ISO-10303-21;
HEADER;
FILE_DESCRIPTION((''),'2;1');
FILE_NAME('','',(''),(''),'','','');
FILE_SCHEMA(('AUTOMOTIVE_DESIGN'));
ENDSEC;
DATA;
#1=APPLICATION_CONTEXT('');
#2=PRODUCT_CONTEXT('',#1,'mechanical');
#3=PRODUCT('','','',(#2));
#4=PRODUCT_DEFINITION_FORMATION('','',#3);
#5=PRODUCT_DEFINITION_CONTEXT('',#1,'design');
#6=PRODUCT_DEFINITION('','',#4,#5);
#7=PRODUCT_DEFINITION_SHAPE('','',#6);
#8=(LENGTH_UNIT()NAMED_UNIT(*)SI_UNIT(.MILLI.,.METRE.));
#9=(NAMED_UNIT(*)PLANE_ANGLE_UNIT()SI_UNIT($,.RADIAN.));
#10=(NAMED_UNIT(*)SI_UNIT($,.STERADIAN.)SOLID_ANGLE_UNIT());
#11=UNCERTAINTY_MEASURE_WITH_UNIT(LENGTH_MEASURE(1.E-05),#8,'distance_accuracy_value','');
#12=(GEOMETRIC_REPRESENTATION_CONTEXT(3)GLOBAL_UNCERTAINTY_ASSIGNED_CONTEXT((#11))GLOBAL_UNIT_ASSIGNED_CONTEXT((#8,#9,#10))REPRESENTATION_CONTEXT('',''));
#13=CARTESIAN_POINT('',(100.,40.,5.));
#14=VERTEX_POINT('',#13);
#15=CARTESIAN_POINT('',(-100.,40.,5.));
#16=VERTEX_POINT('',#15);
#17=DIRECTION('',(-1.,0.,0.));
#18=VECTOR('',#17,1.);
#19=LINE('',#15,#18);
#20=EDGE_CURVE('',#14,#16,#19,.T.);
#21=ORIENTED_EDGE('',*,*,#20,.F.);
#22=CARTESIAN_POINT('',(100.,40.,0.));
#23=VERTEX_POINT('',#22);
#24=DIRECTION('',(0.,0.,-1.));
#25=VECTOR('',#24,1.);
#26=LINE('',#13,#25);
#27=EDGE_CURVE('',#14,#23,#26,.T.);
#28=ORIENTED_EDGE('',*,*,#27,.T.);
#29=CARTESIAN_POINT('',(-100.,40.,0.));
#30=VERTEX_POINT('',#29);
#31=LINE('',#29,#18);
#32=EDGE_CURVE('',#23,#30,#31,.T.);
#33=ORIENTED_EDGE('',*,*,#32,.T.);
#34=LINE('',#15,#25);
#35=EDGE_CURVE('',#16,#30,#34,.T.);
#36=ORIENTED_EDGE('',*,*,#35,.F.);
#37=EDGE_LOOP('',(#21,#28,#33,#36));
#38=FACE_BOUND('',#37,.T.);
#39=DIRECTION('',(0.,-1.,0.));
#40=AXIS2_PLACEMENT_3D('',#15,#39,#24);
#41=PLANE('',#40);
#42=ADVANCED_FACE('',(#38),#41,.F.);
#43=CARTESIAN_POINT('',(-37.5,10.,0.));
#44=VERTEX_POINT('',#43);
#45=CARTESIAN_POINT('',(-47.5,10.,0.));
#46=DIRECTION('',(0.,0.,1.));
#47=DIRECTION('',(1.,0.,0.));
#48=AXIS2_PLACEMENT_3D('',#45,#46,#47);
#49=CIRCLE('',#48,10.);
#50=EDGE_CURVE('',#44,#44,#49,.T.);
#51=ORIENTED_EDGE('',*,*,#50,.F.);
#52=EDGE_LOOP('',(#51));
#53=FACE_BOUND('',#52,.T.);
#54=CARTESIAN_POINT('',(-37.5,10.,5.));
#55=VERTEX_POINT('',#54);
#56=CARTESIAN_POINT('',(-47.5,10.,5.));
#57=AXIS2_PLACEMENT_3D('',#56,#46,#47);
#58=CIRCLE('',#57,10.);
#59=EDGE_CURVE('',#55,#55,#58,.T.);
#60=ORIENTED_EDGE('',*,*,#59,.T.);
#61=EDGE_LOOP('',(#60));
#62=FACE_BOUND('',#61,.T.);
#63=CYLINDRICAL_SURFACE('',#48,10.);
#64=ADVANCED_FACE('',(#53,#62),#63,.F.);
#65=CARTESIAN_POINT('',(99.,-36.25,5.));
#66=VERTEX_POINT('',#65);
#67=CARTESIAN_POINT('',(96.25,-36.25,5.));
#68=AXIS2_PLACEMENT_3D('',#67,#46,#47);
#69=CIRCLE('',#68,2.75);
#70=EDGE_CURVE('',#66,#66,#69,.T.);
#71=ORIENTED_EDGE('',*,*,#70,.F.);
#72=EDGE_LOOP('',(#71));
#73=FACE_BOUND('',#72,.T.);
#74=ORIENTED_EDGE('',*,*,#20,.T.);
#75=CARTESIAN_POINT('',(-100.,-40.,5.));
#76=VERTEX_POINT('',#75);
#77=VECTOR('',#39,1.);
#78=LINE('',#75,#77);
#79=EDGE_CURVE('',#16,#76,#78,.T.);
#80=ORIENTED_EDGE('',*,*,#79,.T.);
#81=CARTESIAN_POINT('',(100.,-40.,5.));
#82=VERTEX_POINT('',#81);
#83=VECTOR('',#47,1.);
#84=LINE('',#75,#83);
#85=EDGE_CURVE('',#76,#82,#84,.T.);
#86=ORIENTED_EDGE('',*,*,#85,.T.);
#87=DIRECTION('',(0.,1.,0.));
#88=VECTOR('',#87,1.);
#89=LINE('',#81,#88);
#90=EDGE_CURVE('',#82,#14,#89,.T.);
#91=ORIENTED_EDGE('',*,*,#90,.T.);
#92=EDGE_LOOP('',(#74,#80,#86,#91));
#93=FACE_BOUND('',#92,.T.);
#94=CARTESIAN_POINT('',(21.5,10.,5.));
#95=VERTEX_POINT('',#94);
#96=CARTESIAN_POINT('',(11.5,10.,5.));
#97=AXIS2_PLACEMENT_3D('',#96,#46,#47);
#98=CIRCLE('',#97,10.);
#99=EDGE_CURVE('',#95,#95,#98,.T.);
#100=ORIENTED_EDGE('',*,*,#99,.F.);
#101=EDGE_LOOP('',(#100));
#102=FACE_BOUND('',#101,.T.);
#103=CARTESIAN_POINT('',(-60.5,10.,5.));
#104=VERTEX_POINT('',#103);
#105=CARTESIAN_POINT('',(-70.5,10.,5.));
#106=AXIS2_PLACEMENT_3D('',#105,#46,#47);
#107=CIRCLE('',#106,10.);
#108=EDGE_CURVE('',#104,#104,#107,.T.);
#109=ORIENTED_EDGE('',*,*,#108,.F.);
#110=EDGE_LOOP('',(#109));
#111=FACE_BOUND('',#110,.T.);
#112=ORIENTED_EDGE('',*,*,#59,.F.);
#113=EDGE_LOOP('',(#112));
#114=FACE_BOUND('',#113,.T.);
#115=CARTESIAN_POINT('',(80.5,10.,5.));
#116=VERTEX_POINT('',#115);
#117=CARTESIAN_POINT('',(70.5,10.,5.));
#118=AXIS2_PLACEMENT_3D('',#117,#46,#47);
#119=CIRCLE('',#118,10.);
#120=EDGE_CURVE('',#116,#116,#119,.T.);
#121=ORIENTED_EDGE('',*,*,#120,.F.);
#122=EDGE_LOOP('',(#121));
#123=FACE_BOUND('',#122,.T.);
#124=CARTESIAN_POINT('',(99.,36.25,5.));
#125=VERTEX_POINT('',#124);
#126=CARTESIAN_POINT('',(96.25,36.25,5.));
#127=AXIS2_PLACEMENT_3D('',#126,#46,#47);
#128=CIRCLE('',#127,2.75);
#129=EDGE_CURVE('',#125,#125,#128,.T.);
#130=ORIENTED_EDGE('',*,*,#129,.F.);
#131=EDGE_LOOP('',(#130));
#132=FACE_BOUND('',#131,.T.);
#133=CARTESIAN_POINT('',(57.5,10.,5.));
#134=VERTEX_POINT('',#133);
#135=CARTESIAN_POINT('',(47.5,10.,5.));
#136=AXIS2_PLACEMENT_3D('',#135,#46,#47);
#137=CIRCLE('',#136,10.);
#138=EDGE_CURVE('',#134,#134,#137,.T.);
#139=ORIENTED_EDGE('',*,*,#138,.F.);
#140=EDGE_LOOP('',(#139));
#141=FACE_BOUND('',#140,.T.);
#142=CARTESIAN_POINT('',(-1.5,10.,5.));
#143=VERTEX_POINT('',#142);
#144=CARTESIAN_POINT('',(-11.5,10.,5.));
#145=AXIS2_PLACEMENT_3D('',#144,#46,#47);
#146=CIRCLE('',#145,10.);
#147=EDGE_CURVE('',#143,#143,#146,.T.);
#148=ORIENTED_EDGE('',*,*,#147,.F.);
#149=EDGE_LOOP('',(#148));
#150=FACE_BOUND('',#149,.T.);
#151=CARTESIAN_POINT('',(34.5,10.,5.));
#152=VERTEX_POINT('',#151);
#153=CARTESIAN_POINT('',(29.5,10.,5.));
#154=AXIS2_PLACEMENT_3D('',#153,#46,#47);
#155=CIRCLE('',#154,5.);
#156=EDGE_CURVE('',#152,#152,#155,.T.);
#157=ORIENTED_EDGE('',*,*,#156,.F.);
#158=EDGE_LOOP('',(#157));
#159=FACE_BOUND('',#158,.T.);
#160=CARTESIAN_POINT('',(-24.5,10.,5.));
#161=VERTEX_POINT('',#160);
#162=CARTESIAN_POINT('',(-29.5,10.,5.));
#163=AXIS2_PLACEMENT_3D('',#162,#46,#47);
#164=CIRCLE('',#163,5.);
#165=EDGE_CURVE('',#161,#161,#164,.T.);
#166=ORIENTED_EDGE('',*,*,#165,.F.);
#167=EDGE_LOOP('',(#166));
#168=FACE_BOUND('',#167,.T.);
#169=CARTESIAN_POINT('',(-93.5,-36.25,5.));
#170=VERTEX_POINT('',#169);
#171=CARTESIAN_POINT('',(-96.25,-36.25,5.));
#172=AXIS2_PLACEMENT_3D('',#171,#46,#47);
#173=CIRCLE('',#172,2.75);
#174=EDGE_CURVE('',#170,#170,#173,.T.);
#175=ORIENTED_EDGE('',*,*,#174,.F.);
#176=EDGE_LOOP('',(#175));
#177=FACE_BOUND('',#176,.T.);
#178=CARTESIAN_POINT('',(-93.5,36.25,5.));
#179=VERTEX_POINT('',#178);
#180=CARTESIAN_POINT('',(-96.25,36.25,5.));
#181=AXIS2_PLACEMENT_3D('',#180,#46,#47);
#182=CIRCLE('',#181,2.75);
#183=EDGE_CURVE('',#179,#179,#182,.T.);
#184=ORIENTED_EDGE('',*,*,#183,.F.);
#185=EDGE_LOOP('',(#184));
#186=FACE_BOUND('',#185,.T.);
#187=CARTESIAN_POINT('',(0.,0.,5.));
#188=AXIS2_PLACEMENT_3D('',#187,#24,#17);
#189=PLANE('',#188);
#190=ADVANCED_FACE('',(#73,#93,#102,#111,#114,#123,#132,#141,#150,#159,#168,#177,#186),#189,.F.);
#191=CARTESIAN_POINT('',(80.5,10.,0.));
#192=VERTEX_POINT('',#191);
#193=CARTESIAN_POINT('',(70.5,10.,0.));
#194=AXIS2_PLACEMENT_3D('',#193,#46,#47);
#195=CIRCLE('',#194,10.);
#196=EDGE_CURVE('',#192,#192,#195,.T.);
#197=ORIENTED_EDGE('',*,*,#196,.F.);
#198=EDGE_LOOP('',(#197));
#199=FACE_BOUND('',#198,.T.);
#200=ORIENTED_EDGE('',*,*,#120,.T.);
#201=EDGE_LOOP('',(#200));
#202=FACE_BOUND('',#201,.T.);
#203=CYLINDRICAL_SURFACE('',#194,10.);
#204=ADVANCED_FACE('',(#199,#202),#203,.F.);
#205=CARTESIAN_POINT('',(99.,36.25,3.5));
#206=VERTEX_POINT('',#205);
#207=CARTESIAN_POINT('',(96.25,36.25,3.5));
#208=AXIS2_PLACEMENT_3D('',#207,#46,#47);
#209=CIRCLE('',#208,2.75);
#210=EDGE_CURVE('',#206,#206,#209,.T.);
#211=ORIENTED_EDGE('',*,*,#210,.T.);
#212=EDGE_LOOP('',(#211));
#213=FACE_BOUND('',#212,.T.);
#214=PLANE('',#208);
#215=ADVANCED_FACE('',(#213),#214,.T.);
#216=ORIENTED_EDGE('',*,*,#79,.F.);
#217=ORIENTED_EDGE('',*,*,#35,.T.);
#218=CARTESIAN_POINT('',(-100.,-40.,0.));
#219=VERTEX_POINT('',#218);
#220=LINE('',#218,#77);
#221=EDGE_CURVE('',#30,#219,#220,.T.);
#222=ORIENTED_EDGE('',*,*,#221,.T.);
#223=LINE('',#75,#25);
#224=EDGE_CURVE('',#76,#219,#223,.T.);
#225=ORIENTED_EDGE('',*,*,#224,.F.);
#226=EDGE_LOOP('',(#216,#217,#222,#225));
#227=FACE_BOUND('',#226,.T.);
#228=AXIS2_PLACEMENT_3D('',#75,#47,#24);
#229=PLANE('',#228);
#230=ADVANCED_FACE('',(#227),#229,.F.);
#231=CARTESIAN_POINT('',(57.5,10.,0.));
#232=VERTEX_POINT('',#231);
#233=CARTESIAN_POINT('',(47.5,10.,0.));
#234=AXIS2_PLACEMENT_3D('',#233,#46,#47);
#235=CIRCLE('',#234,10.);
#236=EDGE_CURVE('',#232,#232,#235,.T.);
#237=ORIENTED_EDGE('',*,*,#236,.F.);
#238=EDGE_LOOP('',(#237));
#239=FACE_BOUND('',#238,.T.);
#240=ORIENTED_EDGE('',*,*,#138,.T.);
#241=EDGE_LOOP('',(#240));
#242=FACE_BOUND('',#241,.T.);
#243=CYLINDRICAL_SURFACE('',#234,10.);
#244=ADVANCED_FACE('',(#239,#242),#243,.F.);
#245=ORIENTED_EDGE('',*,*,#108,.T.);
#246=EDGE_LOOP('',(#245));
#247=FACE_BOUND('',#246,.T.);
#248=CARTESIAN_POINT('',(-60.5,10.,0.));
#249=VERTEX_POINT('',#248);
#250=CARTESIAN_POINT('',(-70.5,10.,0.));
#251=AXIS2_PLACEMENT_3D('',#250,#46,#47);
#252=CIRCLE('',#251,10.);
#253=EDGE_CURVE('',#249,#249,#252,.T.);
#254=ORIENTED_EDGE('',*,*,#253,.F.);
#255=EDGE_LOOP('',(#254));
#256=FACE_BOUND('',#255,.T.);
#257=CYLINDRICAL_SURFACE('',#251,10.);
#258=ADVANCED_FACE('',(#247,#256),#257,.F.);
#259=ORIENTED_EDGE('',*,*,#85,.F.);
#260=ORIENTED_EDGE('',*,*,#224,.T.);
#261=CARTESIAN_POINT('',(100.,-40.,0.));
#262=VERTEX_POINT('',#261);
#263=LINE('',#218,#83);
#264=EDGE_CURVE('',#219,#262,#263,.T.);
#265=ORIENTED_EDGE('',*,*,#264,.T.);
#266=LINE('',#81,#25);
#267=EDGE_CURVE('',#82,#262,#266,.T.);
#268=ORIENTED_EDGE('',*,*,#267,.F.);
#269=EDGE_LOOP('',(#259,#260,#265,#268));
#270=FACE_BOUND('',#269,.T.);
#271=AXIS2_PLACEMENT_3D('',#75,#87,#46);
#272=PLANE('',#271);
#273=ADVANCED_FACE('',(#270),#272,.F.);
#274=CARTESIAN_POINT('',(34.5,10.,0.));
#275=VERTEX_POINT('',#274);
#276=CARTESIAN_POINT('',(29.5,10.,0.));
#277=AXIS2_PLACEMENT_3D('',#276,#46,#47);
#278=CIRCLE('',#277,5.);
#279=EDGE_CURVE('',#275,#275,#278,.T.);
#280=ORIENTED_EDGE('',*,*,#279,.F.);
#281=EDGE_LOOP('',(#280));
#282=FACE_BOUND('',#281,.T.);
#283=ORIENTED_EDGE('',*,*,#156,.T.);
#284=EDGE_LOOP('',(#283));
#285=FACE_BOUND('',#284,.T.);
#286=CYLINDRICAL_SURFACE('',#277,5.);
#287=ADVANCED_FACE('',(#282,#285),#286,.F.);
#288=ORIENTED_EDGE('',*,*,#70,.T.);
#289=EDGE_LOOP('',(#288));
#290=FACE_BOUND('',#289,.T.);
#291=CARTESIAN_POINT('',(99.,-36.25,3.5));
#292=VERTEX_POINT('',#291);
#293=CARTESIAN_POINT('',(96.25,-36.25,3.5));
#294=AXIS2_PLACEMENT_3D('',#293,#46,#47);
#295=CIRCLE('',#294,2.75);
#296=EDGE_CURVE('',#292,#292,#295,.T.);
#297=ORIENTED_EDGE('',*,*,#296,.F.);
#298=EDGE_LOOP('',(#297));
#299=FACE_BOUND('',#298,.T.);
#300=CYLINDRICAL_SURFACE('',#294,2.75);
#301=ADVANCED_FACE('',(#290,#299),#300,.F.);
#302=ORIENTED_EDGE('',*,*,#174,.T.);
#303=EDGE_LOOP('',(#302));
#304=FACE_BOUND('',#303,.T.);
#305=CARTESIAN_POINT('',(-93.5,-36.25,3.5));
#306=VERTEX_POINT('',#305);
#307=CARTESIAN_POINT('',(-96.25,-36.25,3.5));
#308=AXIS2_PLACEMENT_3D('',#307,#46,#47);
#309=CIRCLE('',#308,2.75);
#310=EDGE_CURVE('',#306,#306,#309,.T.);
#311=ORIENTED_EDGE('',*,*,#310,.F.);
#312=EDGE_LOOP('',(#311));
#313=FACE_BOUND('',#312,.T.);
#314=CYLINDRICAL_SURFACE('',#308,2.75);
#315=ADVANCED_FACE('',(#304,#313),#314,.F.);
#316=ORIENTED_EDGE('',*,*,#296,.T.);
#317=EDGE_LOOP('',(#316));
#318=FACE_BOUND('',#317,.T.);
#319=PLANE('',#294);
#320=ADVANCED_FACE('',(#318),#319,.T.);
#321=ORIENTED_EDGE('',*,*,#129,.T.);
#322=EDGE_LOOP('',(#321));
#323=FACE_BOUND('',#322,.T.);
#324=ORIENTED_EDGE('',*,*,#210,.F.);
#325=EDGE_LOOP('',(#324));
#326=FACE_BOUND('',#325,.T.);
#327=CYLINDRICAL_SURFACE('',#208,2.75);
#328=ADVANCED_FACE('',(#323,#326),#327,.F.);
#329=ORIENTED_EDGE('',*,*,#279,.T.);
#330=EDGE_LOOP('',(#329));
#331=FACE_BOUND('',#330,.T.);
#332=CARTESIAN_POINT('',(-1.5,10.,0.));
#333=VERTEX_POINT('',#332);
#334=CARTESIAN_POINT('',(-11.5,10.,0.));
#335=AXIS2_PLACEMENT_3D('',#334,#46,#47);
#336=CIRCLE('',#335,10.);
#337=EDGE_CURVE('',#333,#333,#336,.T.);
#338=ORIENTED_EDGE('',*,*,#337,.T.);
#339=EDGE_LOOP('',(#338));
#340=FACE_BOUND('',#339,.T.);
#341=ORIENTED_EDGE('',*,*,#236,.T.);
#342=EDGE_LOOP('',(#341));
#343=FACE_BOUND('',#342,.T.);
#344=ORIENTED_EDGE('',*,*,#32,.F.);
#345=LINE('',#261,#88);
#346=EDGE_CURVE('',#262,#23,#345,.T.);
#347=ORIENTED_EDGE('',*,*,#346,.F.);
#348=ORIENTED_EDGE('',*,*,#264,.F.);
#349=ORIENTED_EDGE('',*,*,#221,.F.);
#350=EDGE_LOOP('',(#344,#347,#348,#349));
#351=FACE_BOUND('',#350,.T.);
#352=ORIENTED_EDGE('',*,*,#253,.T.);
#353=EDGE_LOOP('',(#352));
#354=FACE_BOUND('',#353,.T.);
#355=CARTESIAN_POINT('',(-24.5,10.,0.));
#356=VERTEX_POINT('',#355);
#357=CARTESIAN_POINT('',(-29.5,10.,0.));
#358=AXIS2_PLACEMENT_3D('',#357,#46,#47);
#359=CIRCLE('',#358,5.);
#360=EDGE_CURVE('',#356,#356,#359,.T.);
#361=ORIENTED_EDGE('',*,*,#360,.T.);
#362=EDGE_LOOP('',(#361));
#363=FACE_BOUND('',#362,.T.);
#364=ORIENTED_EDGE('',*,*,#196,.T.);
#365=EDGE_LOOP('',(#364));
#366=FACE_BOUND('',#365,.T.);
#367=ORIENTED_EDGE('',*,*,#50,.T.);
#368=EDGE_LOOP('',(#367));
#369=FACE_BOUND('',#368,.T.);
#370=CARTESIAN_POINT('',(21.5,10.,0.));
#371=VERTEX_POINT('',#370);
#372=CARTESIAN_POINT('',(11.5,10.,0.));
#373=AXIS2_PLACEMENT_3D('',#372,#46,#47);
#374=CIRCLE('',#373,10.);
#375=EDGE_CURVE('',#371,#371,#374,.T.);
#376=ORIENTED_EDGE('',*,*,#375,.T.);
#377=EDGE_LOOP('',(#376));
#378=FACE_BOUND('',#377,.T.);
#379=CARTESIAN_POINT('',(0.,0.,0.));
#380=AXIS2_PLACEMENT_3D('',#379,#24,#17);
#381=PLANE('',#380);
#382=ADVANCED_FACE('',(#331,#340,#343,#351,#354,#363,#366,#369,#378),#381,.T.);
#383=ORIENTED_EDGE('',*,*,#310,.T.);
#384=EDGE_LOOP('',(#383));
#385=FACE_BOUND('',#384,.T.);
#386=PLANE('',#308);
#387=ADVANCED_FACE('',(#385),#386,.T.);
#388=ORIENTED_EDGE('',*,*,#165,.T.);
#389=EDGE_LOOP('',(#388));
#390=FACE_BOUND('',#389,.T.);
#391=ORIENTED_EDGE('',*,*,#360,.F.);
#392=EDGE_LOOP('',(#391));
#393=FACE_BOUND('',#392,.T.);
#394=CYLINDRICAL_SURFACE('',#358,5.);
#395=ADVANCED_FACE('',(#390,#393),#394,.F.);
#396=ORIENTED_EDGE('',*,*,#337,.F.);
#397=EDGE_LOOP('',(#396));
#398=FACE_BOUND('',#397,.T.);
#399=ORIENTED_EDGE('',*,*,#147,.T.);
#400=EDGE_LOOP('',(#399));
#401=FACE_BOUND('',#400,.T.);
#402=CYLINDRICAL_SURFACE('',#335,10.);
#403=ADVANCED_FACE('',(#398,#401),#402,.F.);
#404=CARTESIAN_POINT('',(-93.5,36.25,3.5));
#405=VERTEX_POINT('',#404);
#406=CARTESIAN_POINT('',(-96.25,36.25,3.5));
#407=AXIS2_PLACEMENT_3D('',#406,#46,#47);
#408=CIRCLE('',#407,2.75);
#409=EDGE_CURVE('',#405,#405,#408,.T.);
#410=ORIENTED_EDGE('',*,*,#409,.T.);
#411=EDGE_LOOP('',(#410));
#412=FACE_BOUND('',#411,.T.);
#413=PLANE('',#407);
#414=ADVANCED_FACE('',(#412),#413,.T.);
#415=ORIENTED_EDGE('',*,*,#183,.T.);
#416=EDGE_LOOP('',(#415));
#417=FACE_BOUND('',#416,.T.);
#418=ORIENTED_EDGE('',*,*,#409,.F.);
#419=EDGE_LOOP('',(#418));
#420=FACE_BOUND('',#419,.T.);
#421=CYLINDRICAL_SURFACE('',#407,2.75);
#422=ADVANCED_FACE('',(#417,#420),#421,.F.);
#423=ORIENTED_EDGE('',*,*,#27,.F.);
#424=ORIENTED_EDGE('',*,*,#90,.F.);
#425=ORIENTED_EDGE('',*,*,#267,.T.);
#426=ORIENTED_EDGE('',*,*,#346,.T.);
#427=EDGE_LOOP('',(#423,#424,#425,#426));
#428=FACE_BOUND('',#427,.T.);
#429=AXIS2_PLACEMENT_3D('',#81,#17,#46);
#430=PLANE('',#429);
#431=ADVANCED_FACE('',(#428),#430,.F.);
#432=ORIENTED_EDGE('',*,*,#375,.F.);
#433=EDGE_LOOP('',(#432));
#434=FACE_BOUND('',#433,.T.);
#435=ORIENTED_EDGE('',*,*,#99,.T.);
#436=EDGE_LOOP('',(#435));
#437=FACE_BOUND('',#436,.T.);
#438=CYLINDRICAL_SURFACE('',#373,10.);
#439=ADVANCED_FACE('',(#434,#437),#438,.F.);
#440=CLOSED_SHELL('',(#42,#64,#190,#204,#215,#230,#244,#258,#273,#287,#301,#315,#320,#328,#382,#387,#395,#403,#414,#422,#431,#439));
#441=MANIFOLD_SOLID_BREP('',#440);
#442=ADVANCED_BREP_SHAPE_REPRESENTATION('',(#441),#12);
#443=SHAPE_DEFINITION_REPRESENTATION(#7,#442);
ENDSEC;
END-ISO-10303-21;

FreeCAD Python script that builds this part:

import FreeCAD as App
import Part
import Sketcher

V = App.Vector


def add_polygon(sketch, points):
    """Adds a closed chain of lines whose ends are joined by coincident constraints."""
    first, n = sketch.GeometryCount, len(points)
    for a, b in zip(points, points[1:] + points[:1]):
        sketch.addGeometry(Part.LineSegment(App.Vector(*a, 0), App.Vector(*b, 0)), False)
    for i in range(n):
        sketch.addConstraint(Sketcher.Constraint("Coincident", first + i, 2, first + (i + 1) % n, 1))

doc = App.newDocument("Part")
body = doc.addObject("PartDesign::Body", "Body")

# Sketch on XY plane
sketch1 = doc.addObject("Sketcher::SketchObject", "Sketch")
body.addObject(sketch1)
sketch1.AttachmentSupport = (doc.XY_Plane, [""])
sketch1.MapMode = "FlatFace"
add_polygon(sketch1, [(-100, 40), (-100, -40), (100, -40), (100, 40)])  # lines 0-3
sketch1.addConstraint([
    Sketcher.Constraint("Vertical", 0),
    Sketcher.Constraint("Horizontal", 1),
    Sketcher.Constraint("Vertical", 2),
    Sketcher.Constraint("Horizontal", 3),
    Sketcher.Constraint("Symmetric", 0, 2, 2, 2, -1, 1),
    Sketcher.Constraint("DistanceX", 1, 1, 1, 2, 200.0),
    Sketcher.Constraint("DistanceY", 0, 2, 0, 1, 80.0),
])
pad1 = doc.addObject("PartDesign::Pad", "Pad")
body.addObject(pad1)
pad1.Profile = sketch1
pad1.Length = 5

# Sketch on XY plane
sketch2 = doc.addObject("Sketcher::SketchObject", "Sketch001")
body.addObject(sketch2)
sketch2.AttachmentSupport = (doc.XY_Plane, [""])
sketch2.MapMode = "FlatFace"
sketch2.AttachmentOffset = App.Placement(V(0, 0, 5), App.Rotation())
sketch2.addGeometry([
    Part.Circle(V(-96.2, 36.2, 0), V(0, 0, 1), 2.8),
    Part.Circle(V(96.2, 36.2, 0), V(0, 0, 1), 2.8),
    Part.Circle(V(96.2, -36.2, 0), V(0, 0, 1), 2.8),
    Part.Circle(V(-96.2, -36.2, 0), V(0, 0, 1), 2.8),
], False)
sketch2.addConstraint([
    Sketcher.Constraint("Equal", 0, 1),
    Sketcher.Constraint("Equal", 1, 2),
    Sketcher.Constraint("Equal", 2, 3),
    Sketcher.Constraint("Symmetric", 0, 3, 2, 3, -1, 1),
    Sketcher.Constraint("Symmetric", 1, 3, 3, 3, -1, 1),
    Sketcher.Constraint("Symmetric", 0, 3, 1, 3, -2),
    Sketcher.Constraint("Diameter", 0, 5.5),
    Sketcher.Constraint("DistanceX", 0, 3, 1, 3, 192.5),
    Sketcher.Constraint("DistanceY", 2, 3, 1, 3, 72.5),
])
pocket1 = doc.addObject("PartDesign::Pocket", "Pocket")
body.addObject(pocket1)
pocket1.Profile = sketch2
pocket1.Length = 1.5

# Sketch on XY plane
sketch3 = doc.addObject("Sketcher::SketchObject", "Sketch002")
body.addObject(sketch3)
sketch3.AttachmentSupport = (doc.XY_Plane, [""])
sketch3.MapMode = "FlatFace"
sketch3.AttachmentOffset = App.Placement(V(0, 0, 5), App.Rotation())
sketch3.addGeometry([
    Part.Circle(V(-70, 10, 0), V(0, 0, 1), 10),  # 0
    Part.Circle(V(-48, 10, 0), V(0, 0, 1), 10),  # 1
    Part.Circle(V(-30, 10, 0), V(0, 0, 1), 5),  # 2
    Part.Circle(V(-12, 10, 0), V(0, 0, 1), 10),  # 3
    Part.Circle(V(12, 10, 0), V(0, 0, 1), 10),  # 4
    Part.Circle(V(30, 10, 0), V(0, 0, 1), 5),  # 5
    Part.Circle(V(48, 10, 0), V(0, 0, 1), 10),  # 6
    Part.Circle(V(70, 10, 0), V(0, 0, 1), 10),  # 7
], False)
sketch3.addConstraint([
    Sketcher.Constraint("Equal", 0, 1),
    Sketcher.Constraint("Equal", 1, 3),
    Sketcher.Constraint("Equal", 3, 4),
    Sketcher.Constraint("Equal", 2, 5),
    Sketcher.Constraint("Equal", 4, 6),
    Sketcher.Constraint("Equal", 6, 7),
    Sketcher.Constraint("Symmetric", 3, 3, 4, 3, -2),
    Sketcher.Constraint("Symmetric", 2, 3, 5, 3, -2),
    Sketcher.Constraint("Symmetric", 1, 3, 6, 3, -2),
    Sketcher.Constraint("Symmetric", 0, 3, 7, 3, -2),
    Sketcher.Constraint("Horizontal", 0, 3, 1, 3),
    Sketcher.Constraint("Horizontal", 1, 3, 2, 3),
    Sketcher.Constraint("Horizontal", 2, 3, 3, 3),
    Sketcher.Constraint("Diameter", 0, 20.0),
    Sketcher.Constraint("Diameter", 2, 10.0),
    Sketcher.Constraint("DistanceY", -1, 1, 0, 3, 10.0),
    Sketcher.Constraint("DistanceX", 0, 3, 1, 3, 23.0),
    Sketcher.Constraint("DistanceX", 1, 3, 2, 3, 18.0),
    Sketcher.Constraint("DistanceX", 2, 3, 3, 3, 18.0),
    Sketcher.Constraint("DistanceX", 3, 3, 4, 3, 23.0),
])
pocket2 = doc.addObject("PartDesign::Pocket", "Pocket001")
body.addObject(pocket2)
pocket2.Profile = sketch3
pocket2.Length = 5

doc.recompute()
